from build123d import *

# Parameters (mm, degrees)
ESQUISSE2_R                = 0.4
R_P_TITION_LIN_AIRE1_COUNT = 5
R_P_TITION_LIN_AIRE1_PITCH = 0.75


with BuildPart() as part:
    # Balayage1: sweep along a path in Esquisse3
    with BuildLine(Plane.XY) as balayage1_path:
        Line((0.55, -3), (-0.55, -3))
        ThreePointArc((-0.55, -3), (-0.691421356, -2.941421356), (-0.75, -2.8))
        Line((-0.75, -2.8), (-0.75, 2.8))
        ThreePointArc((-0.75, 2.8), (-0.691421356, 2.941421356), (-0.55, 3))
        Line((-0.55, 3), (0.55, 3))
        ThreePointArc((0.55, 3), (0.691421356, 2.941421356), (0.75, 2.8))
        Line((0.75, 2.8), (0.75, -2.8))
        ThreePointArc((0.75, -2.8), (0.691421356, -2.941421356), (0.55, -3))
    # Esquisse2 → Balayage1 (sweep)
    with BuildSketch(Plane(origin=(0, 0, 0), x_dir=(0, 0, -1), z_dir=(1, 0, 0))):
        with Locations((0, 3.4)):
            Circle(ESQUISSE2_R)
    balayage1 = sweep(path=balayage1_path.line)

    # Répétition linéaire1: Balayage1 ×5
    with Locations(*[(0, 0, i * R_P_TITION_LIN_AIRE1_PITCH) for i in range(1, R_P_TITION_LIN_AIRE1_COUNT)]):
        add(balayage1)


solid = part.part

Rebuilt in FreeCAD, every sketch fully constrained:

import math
import FreeCAD as App
import Part
import Sketcher
from FreeCAD import Vector
Q = App.Units.Quantity

doc = App.newDocument("Part")
params = doc.addObject("Spreadsheet::Sheet", "Params")
for row, (alias, value) in enumerate([
    ("sketch1_diameter", "0.8 mm"),
    ("sketch2_radius", "0.2 mm"),
    ("sketch2_width", "1.1 mm"),
    ("sketch2_height", "5.6 mm"),
    ("linearpattern_pitch", "0.75 mm"),
], start=1):
    params.set(f"A{row}", alias)
    params.set(f"B{row}", "=" + value)
    params.setAlias(f"B{row}", alias)

body = doc.addObject("PartDesign::Body", "Body")

sketch1 = body.newObject("Sketcher::SketchObject", "Sketch")
sketch1.AttachmentSupport = (doc.getObject("YZ_Plane"), [""])
sketch1.MapMode = "FlatFace"
sketch1.addGeometry(Part.Circle(Vector(3.4, 0, 0), Vector(0, 0, 1), 0.4), False)
sketch1.addConstraint([
    Sketcher.Constraint("PointOnObject", 0, 3, -1),
    Sketcher.Constraint("Diameter", 0, Q("0.8 mm")),
    Sketcher.Constraint("DistanceX", -1, 1, 0, 3, Q("3.4 mm")),
])
sketch1.setExpression("Constraints[1]", "Params.sketch1_diameter")

sketch2 = body.newObject("Sketcher::SketchObject", "Sketch001")
sketch2.AttachmentSupport = (doc.getObject("XY_Plane"), [""])
sketch2.MapMode = "FlatFace"
sketch2.addGeometry([
    Part.LineSegment(Vector(0.55, -3, 0), Vector(-0.55, -3, 0)),
    Part.ArcOfCircle(Part.Circle(Vector(-0.55, -2.8, 0), Vector(0, 0, 1), 0.2), math.radians(-180), math.radians(-90)),
    Part.LineSegment(Vector(-0.75, -2.8, 0), Vector(-0.75, 2.8, 0)),
    Part.ArcOfCircle(Part.Circle(Vector(-0.55, 2.8, 0), Vector(0, 0, 1), 0.2), math.radians(90), math.radians(180)),
    Part.LineSegment(Vector(-0.55, 3, 0), Vector(0.55, 3, 0)),
    Part.ArcOfCircle(Part.Circle(Vector(0.55, 2.8, 0), Vector(0, 0, 1), 0.2), math.radians(0), math.radians(90)),
    Part.LineSegment(Vector(0.75, 2.8, 0), Vector(0.75, -2.8, 0)),
    Part.ArcOfCircle(Part.Circle(Vector(0.55, -2.8, 0), Vector(0, 0, 1), 0.2), math.radians(-90), math.radians(0)),
], False)
sketch2.addConstraint([
    Sketcher.Constraint("Tangent", 0, 2, 1, 2),
    Sketcher.Constraint("Tangent", 1, 1, 2, 1),
    Sketcher.Constraint("Tangent", 2, 2, 3, 2),
    Sketcher.Constraint("Tangent", 3, 1, 4, 1),
    Sketcher.Constraint("Tangent", 4, 2, 5, 2),
    Sketcher.Constraint("Tangent", 5, 1, 6, 1),
    Sketcher.Constraint("Tangent", 6, 2, 7, 2),
    Sketcher.Constraint("Tangent", 7, 1, 0, 1),
    Sketcher.Constraint("Horizontal", 0),
    Sketcher.Constraint("Vertical", 2),
    Sketcher.Constraint("Horizontal", 4),
    Sketcher.Constraint("Vertical", 6),
    Sketcher.Constraint("Equal", 1, 3),
    Sketcher.Constraint("Equal", 3, 5),
    Sketcher.Constraint("Equal", 5, 7),
    Sketcher.Constraint("Symmetric", 1, 3, 5, 3, -1, 1),
    Sketcher.Constraint("Radius", 1, Q("0.2 mm")),
    Sketcher.Constraint("DistanceX", 0, 2, 0, 1, Q("1.1 mm")),
    Sketcher.Constraint("DistanceY", 2, 1, 2, 2, Q("5.6 mm")),
])
sketch2.setExpression("Constraints[16]", "Params.sketch2_radius")
sketch2.setExpression("Constraints[17]", "Params.sketch2_width")
sketch2.setExpression("Constraints[18]", "Params.sketch2_height")
doc.recompute()

additivepipe = body.newObject("PartDesign::AdditivePipe", "AdditivePipe")
additivepipe.Profile = sketch1
additivepipe.Spine = (sketch2, ["Edge1", "Edge2", "Edge3", "Edge4", "Edge5", "Edge6", "Edge7", "Edge8"])
doc.recompute()

linearpattern = body.newObject("PartDesign::LinearPattern", "LinearPattern")
linearpattern.Originals = [additivepipe]
linearpattern.Direction = (doc.getObject("Z_Axis"), [""])
linearpattern.Mode = "offset"
linearpattern.setExpression("Offset", "Params.linearpattern_pitch")
linearpattern.Occurrences = 5
body.Tip = linearpattern

doc.recompute()
